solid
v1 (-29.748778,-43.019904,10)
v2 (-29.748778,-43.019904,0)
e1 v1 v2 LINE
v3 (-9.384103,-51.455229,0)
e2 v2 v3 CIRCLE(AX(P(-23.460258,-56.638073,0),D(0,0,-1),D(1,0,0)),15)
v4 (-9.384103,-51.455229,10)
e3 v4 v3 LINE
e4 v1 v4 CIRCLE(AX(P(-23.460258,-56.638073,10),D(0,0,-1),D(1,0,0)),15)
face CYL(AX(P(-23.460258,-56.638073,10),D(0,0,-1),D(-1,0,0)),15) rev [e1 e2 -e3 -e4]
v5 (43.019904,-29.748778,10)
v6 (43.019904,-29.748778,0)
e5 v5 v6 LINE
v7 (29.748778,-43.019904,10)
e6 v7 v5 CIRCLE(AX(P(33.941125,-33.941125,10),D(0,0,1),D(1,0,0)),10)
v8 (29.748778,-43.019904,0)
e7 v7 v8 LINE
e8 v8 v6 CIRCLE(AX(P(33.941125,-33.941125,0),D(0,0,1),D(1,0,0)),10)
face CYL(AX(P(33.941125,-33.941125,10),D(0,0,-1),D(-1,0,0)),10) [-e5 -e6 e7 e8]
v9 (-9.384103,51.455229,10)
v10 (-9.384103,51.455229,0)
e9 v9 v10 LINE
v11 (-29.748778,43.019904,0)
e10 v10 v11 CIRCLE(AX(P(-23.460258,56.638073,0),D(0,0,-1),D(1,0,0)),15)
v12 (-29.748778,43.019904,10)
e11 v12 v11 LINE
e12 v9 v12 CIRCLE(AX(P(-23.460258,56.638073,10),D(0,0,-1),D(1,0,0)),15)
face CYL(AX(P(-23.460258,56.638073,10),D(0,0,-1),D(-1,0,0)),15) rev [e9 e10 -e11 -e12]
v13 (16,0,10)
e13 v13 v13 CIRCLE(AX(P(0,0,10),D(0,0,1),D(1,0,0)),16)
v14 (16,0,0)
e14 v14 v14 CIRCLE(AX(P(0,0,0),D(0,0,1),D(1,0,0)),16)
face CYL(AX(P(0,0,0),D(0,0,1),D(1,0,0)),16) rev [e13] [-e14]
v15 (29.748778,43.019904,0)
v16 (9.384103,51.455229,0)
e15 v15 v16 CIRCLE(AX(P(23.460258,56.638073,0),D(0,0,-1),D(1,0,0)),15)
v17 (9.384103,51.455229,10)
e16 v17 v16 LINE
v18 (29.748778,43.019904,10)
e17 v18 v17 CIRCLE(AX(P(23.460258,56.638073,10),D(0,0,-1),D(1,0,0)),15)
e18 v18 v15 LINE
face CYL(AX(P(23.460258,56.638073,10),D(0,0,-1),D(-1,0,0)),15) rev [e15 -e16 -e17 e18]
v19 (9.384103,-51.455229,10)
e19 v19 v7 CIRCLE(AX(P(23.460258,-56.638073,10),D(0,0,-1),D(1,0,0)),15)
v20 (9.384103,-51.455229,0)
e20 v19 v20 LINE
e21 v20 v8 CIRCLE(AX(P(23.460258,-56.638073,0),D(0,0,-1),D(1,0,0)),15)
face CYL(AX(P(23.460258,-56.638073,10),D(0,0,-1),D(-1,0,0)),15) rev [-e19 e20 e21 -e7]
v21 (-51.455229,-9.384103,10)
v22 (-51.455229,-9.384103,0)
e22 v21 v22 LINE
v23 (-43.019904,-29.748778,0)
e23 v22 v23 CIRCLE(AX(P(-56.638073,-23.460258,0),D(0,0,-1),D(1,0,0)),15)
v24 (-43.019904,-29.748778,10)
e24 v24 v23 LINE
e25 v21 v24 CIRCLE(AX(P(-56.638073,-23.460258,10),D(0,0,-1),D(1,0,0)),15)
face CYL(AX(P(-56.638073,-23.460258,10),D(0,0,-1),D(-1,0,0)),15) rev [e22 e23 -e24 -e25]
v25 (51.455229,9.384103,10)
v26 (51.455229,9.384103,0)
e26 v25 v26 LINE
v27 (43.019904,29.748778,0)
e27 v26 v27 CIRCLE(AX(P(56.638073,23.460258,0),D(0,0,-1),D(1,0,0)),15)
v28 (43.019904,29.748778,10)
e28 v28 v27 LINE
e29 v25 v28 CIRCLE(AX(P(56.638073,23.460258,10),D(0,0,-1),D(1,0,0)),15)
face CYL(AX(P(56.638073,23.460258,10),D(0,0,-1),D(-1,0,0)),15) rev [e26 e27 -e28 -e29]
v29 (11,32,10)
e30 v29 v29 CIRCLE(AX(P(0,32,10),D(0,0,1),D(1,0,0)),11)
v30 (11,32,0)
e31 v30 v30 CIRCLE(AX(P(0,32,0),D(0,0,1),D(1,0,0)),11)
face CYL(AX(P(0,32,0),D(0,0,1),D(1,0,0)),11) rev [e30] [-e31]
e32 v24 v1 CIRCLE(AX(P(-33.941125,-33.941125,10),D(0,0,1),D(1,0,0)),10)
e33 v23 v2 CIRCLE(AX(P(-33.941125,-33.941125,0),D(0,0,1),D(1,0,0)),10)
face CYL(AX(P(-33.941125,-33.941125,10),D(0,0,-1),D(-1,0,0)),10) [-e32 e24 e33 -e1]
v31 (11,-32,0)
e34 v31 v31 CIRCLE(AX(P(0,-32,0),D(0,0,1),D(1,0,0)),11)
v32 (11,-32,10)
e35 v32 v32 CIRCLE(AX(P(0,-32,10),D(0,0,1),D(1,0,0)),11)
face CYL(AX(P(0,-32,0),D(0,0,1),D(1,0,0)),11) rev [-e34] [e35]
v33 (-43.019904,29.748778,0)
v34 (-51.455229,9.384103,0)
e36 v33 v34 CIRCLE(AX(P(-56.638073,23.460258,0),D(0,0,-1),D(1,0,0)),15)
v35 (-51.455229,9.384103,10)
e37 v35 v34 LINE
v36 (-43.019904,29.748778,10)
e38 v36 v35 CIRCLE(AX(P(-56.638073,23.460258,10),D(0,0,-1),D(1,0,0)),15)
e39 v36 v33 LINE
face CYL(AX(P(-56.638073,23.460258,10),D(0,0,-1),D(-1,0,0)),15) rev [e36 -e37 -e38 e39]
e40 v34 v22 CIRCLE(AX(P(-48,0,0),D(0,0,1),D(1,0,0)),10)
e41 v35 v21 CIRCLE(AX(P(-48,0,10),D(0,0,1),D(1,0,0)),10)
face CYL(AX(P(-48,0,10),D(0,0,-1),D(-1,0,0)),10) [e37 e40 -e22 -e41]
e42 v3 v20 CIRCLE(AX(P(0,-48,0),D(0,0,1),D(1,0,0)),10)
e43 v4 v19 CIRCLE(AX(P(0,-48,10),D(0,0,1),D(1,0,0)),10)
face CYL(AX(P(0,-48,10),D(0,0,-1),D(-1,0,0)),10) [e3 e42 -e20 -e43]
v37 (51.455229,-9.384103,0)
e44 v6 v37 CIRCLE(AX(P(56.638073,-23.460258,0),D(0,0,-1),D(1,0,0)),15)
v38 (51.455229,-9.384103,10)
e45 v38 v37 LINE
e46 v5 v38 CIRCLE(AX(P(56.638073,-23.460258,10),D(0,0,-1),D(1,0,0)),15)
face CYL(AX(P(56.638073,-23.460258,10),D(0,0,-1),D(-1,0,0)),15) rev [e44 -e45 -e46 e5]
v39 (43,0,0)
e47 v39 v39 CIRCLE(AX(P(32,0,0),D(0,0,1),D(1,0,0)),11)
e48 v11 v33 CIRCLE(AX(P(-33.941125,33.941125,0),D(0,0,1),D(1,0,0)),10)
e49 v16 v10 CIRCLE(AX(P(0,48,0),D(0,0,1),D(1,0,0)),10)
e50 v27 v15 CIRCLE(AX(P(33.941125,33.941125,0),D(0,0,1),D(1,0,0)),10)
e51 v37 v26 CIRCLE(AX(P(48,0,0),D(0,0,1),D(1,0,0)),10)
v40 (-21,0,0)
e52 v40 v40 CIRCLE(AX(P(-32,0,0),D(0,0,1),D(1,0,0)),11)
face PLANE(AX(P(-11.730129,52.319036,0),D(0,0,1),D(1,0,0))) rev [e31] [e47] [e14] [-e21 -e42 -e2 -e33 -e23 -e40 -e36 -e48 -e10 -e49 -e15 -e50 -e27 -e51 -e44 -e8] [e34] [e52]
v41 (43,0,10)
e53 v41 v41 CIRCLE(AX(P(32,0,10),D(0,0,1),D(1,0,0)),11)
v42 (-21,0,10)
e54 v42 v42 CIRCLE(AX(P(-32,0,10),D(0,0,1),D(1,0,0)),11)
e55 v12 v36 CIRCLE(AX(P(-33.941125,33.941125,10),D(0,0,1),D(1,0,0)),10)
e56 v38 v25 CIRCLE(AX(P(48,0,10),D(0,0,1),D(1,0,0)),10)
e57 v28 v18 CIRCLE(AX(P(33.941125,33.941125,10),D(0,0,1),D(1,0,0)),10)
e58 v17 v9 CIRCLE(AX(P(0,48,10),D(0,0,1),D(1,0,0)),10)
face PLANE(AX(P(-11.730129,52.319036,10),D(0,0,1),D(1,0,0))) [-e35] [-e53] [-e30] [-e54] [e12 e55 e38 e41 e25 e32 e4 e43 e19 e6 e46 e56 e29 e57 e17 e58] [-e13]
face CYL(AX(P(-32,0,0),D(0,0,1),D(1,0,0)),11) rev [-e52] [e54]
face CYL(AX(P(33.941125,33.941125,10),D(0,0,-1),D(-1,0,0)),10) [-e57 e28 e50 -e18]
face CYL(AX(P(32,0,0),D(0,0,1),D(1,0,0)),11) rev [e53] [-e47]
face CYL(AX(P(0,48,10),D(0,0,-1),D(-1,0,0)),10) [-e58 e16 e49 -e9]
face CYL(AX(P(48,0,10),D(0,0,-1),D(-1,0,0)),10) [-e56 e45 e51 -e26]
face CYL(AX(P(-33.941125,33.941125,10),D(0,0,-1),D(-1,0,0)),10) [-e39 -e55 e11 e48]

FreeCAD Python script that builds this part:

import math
import FreeCAD as App
import Part
import Sketcher

V = App.Vector
Q = App.Units.Quantity

doc = App.newDocument("Part")
body = doc.addObject("PartDesign::Body", "Body")

sketch1 = body.newObject("Sketcher::SketchObject", "Sketch")
sketch1.AttachmentSupport = (doc.getObject("XY_Plane"), [""])
sketch1.MapMode = "FlatFace"
sketch1.addGeometry([
    Part.ArcOfCircle(Part.Circle(V(0, 48, 0), V(0, 0, 1), 10), math.radians(20.213719), math.radians(159.786281)),
    Part.ArcOfCircle(Part.Circle(V(-23.460258, 56.638073, 0), V(0, 0, 1), 15), math.radians(-114.786281), math.radians(-20.213719)),
    Part.ArcOfCircle(Part.Circle(V(-33.941125, 33.941125, 0), V(0, 0, 1), 10), math.radians(65.213719), math.radians(204.786281)),
    Part.ArcOfCircle(Part.Circle(V(-56.638073, 23.460258, 0), V(0, 0, 1), 15), math.radians(-69.786281), math.radians(24.786281)),
    Part.ArcOfCircle(Part.Circle(V(-48, 0, 0), V(0, 0, 1), 10), math.radians(110.213719), math.radians(249.786281)),
    Part.ArcOfCircle(Part.Circle(V(-56.638073, -23.460258, 0), V(0, 0, 1), 15), math.radians(-24.786281), math.radians(69.786281)),
    Part.ArcOfCircle(Part.Circle(V(-33.941125, -33.941125, 0), V(0, 0, 1), 10), math.radians(155.213719), math.radians(294.786281)),
    Part.ArcOfCircle(Part.Circle(V(-23.460258, -56.638073, 0), V(0, 0, 1), 15), math.radians(20.213719), math.radians(114.786281)),
    Part.ArcOfCircle(Part.Circle(V(0, -48, 0), V(0, 0, 1), 10), math.radians(-159.786281), math.radians(-20.213719)),
    Part.ArcOfCircle(Part.Circle(V(23.460258, -56.638073, 0), V(0, 0, 1), 15), math.radians(65.213719), math.radians(159.786281)),
    Part.ArcOfCircle(Part.Circle(V(33.941125, -33.941125, 0), V(0, 0, 1), 10), math.radians(-114.786281), math.radians(24.786281)),
    Part.ArcOfCircle(Part.Circle(V(56.638073, -23.460258, 0), V(0, 0, 1), 15), math.radians(110.213719), math.radians(204.786281)),
    Part.ArcOfCircle(Part.Circle(V(48, 0, 0), V(0, 0, 1), 10), math.radians(-69.786281), math.radians(69.786281)),
    Part.ArcOfCircle(Part.Circle(V(56.638073, 23.460258, 0), V(0, 0, 1), 15), math.radians(155.213719), math.radians(249.786281)),
    Part.ArcOfCircle(Part.Circle(V(33.941125, 33.941125, 0), V(0, 0, 1), 10), math.radians(-24.786281), math.radians(114.786281)),
    Part.ArcOfCircle(Part.Circle(V(23.460258, 56.638073, 0), V(0, 0, 1), 15), math.radians(-159.786281), math.radians(-65.213719)),
], False)
sketch1.addConstraint([
    Sketcher.Constraint("Tangent", 0, 2, 1, 2),
    Sketcher.Constraint("Tangent", 1, 1, 2, 1),
    Sketcher.Constraint("Tangent", 2, 2, 3, 2),
    Sketcher.Constraint("Tangent", 3, 1, 4, 1),
    Sketcher.Constraint("Tangent", 4, 2, 5, 2),
    Sketcher.Constraint("Tangent", 5, 1, 6, 1),
    Sketcher.Constraint("Tangent", 6, 2, 7, 2),
    Sketcher.Constraint("Tangent", 7, 1, 8, 1),
    Sketcher.Constraint("Tangent", 8, 2, 9, 2),
    Sketcher.Constraint("Tangent", 9, 1, 10, 1),
    Sketcher.Constraint("Tangent", 10, 2, 11, 2),
    Sketcher.Constraint("Tangent", 11, 1, 12, 1),
    Sketcher.Constraint("Tangent", 12, 2, 13, 2),
    Sketcher.Constraint("Tangent", 13, 1, 14, 1),
    Sketcher.Constraint("Tangent", 14, 2, 15, 2),
    Sketcher.Constraint("Tangent", 15, 1, 0, 1),
    Sketcher.Constraint("Equal", 0, 2),
    Sketcher.Constraint("Equal", 1, 3),
    Sketcher.Constraint("Equal", 2, 4),
    Sketcher.Constraint("Equal", 3, 5),
    Sketcher.Constraint("Equal", 4, 6),
    Sketcher.Constraint("Equal", 5, 7),
    Sketcher.Constraint("Equal", 6, 8),
    Sketcher.Constraint("Equal", 7, 9),
    Sketcher.Constraint("Equal", 8, 10),
    Sketcher.Constraint("Equal", 9, 11),
    Sketcher.Constraint("Equal", 10, 12),
    Sketcher.Constraint("Equal", 11, 13),
    Sketcher.Constraint("Equal", 12, 14),
    Sketcher.Constraint("Equal", 13, 15),
    Sketcher.Constraint("Symmetric", 0, 3, 8, 3, -1, 1),
    Sketcher.Constraint("Symmetric", 2, 3, 10, 3, -1, 1),
    Sketcher.Constraint("Symmetric", 4, 3, 12, 3, -1, 1),
    Sketcher.Constraint("Symmetric", 6, 3, 14, 3, -1, 1),
    Sketcher.Constraint("Symmetric", 7, 3, 9, 3, -2),
    Sketcher.Constraint("Symmetric", 5, 3, 11, 3, -2),
    Sketcher.Constraint("Radius", 0, Q("10 mm")),
    Sketcher.Constraint("Radius", 1, Q("15 mm")),
    Sketcher.Constraint("DistanceY", -1, 1, 0, 3, Q("48 mm")),
    Sketcher.Constraint("DistanceX", 4, 3, -1, 1, Q("48 mm")),
    Sketcher.Constraint("DistanceY", 7, 3, 2, 3, Q("90.579198 mm")),
    Sketcher.Constraint("DistanceY", -1, 1, 0, 2, Q("51.455229 mm")),
])
pad1 = body.newObject("PartDesign::Pad", "Pad")
pad1.Profile = sketch1
pad1.Length = 10

sketch2 = body.newObject("Sketcher::SketchObject", "Sketch001")
sketch2.AttachmentSupport = (doc.getObject("XY_Plane"), [""])
sketch2.MapMode = "FlatFace"
sketch2.AttachmentOffset = App.Placement(V(0, 0, 10), App.Rotation())
sketch2.addGeometry([
    Part.Circle(V(0, 0, 0), V(0, 0, 1), 16),
    Part.Circle(V(0, 32, 0), V(0, 0, 1), 11),
    Part.Circle(V(32, 0, 0), V(0, 0, 1), 11),
    Part.Circle(V(0, -32, 0), V(0, 0, 1), 11),
    Part.Circle(V(-32, 0, 0), V(0, 0, 1), 11),
], False)
sketch2.addConstraint([
    Sketcher.Constraint("Coincident", 0, 3, -1, 1),
    Sketcher.Constraint("Equal", 1, 2),
    Sketcher.Constraint("Equal", 2, 3),
    Sketcher.Constraint("Equal", 3, 4),
    Sketcher.Constraint("Symmetric", 1, 3, 3, 3, -1, 1),
    Sketcher.Constraint("Symmetric", 2, 3, 4, 3, -1, 1),
    Sketcher.Constraint("PointOnObject", 1, 3, -2),
    Sketcher.Constraint("PointOnObject", 2, 3, -1),
    Sketcher.Constraint("Diameter", 0, Q("32 mm")),
    Sketcher.Constraint("Diameter", 1, Q("22 mm")),
    Sketcher.Constraint("DistanceY", -1, 1, 1, 3, Q("32 mm")),
    Sketcher.Constraint("DistanceX", -1, 1, 2, 3, Q("32 mm")),
])
pocket1 = body.newObject("PartDesign::Pocket", "Pocket")
pocket1.Profile = sketch2
pocket1.Length = 10

doc.recompute()
